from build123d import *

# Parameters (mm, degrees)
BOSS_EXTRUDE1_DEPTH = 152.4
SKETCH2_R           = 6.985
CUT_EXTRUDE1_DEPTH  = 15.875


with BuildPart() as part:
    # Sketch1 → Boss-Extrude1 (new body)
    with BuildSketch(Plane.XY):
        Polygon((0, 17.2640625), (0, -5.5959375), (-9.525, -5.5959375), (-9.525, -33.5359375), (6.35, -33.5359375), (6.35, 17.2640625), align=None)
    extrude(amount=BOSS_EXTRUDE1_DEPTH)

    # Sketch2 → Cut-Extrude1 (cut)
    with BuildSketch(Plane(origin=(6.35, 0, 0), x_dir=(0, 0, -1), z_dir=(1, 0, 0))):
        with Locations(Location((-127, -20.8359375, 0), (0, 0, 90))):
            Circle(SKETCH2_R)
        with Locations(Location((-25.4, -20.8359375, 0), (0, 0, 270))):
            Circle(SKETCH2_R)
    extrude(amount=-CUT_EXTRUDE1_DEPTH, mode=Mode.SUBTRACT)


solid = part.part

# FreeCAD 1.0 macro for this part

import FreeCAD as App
import Part
import Sketcher
Q = App.Units.Quantity


def add_polygon(sketch, points):
    """Adds a closed chain of lines whose ends are joined by coincident constraints."""
    first, n = sketch.GeometryCount, len(points)
    for a, b in zip(points, points[1:] + points[:1]):
        sketch.addGeometry(Part.LineSegment(App.Vector(*a, 0), App.Vector(*b, 0)), False)
    for i in range(n):
        sketch.addConstraint(Sketcher.Constraint("Coincident", first + i, 2, first + (i + 1) % n, 1))

doc = App.newDocument("Part")
body = doc.addObject("PartDesign::Body", "Body")

sketch1 = body.newObject("Sketcher::SketchObject", "Sketch")
sketch1.AttachmentSupport = (doc.getObject("XY_Plane"), [""])
sketch1.MapMode = "FlatFace"
add_polygon(sketch1, [(0, 17), (0, -6), (-10, -6), (-10, -34), (6, -34), (6, 17)])
sketch1.addConstraint([
    Sketcher.Constraint("Vertical", 0),
    Sketcher.Constraint("Horizontal", 1),
    Sketcher.Constraint("Vertical", 2),
    Sketcher.Constraint("Horizontal", 3),
    Sketcher.Constraint("Vertical", 4),
    Sketcher.Constraint("Horizontal", 5),
    Sketcher.Constraint("PointOnObject", 0, 2, -2),
    Sketcher.Constraint("DistanceY", 4, 1, 4, 2, Q("2 in")),
    Sketcher.Constraint("DistanceY", 0, 2, 0, 1, Q("0.9 in")),
    Sketcher.Constraint("DistanceX", 5, 2, 5, 1, Q("0.25 in")),
    Sketcher.Constraint("DistanceX", 1, 2, 1, 1, Q("0.375 in")),
    Sketcher.Constraint("DistanceY", 0, 2, -1, 1, 5.595937),
])
pad1 = body.newObject("PartDesign::Pad", "Pad")
pad1.Profile = sketch1
pad1.Length = Q("6 in")

sketch2 = body.newObject("Sketcher::SketchObject", "Sketch001")
sketch2.AttachmentSupport = (doc.getObject("YZ_Plane"), [""])
sketch2.MapMode = "FlatFace"
sketch2.AttachmentOffset = App.Placement(App.Vector(0, 0, 0.25 * 25.4), App.Rotation())
sketch2.addGeometry([
    Part.Circle(App.Vector(-21, 127, 0), App.Vector(0, 0, 1), 7),
    Part.Circle(App.Vector(-21, 25, 0), App.Vector(0, 0, 1), 7),
], False)
sketch2.addConstraint([
    Sketcher.Constraint("Equal", 0, 1),
    Sketcher.Constraint("Vertical", 0, 3, 1, 3),
    Sketcher.Constraint("Diameter", 0, Q("0.55 in")),
    Sketcher.Constraint("DistanceY", -1, 1, 0, 3, Q("5 in")),
    Sketcher.Constraint("DistanceY", -1, 1, 1, 3, Q("1 in")),
    Sketcher.Constraint("DistanceX", 0, 3, -1, 1, 20.835938),
])
pocket1 = body.newObject("PartDesign::Pocket", "Pocket")
pocket1.Profile = sketch2
pocket1.Length = Q("0.625 in")

doc.recompute()
